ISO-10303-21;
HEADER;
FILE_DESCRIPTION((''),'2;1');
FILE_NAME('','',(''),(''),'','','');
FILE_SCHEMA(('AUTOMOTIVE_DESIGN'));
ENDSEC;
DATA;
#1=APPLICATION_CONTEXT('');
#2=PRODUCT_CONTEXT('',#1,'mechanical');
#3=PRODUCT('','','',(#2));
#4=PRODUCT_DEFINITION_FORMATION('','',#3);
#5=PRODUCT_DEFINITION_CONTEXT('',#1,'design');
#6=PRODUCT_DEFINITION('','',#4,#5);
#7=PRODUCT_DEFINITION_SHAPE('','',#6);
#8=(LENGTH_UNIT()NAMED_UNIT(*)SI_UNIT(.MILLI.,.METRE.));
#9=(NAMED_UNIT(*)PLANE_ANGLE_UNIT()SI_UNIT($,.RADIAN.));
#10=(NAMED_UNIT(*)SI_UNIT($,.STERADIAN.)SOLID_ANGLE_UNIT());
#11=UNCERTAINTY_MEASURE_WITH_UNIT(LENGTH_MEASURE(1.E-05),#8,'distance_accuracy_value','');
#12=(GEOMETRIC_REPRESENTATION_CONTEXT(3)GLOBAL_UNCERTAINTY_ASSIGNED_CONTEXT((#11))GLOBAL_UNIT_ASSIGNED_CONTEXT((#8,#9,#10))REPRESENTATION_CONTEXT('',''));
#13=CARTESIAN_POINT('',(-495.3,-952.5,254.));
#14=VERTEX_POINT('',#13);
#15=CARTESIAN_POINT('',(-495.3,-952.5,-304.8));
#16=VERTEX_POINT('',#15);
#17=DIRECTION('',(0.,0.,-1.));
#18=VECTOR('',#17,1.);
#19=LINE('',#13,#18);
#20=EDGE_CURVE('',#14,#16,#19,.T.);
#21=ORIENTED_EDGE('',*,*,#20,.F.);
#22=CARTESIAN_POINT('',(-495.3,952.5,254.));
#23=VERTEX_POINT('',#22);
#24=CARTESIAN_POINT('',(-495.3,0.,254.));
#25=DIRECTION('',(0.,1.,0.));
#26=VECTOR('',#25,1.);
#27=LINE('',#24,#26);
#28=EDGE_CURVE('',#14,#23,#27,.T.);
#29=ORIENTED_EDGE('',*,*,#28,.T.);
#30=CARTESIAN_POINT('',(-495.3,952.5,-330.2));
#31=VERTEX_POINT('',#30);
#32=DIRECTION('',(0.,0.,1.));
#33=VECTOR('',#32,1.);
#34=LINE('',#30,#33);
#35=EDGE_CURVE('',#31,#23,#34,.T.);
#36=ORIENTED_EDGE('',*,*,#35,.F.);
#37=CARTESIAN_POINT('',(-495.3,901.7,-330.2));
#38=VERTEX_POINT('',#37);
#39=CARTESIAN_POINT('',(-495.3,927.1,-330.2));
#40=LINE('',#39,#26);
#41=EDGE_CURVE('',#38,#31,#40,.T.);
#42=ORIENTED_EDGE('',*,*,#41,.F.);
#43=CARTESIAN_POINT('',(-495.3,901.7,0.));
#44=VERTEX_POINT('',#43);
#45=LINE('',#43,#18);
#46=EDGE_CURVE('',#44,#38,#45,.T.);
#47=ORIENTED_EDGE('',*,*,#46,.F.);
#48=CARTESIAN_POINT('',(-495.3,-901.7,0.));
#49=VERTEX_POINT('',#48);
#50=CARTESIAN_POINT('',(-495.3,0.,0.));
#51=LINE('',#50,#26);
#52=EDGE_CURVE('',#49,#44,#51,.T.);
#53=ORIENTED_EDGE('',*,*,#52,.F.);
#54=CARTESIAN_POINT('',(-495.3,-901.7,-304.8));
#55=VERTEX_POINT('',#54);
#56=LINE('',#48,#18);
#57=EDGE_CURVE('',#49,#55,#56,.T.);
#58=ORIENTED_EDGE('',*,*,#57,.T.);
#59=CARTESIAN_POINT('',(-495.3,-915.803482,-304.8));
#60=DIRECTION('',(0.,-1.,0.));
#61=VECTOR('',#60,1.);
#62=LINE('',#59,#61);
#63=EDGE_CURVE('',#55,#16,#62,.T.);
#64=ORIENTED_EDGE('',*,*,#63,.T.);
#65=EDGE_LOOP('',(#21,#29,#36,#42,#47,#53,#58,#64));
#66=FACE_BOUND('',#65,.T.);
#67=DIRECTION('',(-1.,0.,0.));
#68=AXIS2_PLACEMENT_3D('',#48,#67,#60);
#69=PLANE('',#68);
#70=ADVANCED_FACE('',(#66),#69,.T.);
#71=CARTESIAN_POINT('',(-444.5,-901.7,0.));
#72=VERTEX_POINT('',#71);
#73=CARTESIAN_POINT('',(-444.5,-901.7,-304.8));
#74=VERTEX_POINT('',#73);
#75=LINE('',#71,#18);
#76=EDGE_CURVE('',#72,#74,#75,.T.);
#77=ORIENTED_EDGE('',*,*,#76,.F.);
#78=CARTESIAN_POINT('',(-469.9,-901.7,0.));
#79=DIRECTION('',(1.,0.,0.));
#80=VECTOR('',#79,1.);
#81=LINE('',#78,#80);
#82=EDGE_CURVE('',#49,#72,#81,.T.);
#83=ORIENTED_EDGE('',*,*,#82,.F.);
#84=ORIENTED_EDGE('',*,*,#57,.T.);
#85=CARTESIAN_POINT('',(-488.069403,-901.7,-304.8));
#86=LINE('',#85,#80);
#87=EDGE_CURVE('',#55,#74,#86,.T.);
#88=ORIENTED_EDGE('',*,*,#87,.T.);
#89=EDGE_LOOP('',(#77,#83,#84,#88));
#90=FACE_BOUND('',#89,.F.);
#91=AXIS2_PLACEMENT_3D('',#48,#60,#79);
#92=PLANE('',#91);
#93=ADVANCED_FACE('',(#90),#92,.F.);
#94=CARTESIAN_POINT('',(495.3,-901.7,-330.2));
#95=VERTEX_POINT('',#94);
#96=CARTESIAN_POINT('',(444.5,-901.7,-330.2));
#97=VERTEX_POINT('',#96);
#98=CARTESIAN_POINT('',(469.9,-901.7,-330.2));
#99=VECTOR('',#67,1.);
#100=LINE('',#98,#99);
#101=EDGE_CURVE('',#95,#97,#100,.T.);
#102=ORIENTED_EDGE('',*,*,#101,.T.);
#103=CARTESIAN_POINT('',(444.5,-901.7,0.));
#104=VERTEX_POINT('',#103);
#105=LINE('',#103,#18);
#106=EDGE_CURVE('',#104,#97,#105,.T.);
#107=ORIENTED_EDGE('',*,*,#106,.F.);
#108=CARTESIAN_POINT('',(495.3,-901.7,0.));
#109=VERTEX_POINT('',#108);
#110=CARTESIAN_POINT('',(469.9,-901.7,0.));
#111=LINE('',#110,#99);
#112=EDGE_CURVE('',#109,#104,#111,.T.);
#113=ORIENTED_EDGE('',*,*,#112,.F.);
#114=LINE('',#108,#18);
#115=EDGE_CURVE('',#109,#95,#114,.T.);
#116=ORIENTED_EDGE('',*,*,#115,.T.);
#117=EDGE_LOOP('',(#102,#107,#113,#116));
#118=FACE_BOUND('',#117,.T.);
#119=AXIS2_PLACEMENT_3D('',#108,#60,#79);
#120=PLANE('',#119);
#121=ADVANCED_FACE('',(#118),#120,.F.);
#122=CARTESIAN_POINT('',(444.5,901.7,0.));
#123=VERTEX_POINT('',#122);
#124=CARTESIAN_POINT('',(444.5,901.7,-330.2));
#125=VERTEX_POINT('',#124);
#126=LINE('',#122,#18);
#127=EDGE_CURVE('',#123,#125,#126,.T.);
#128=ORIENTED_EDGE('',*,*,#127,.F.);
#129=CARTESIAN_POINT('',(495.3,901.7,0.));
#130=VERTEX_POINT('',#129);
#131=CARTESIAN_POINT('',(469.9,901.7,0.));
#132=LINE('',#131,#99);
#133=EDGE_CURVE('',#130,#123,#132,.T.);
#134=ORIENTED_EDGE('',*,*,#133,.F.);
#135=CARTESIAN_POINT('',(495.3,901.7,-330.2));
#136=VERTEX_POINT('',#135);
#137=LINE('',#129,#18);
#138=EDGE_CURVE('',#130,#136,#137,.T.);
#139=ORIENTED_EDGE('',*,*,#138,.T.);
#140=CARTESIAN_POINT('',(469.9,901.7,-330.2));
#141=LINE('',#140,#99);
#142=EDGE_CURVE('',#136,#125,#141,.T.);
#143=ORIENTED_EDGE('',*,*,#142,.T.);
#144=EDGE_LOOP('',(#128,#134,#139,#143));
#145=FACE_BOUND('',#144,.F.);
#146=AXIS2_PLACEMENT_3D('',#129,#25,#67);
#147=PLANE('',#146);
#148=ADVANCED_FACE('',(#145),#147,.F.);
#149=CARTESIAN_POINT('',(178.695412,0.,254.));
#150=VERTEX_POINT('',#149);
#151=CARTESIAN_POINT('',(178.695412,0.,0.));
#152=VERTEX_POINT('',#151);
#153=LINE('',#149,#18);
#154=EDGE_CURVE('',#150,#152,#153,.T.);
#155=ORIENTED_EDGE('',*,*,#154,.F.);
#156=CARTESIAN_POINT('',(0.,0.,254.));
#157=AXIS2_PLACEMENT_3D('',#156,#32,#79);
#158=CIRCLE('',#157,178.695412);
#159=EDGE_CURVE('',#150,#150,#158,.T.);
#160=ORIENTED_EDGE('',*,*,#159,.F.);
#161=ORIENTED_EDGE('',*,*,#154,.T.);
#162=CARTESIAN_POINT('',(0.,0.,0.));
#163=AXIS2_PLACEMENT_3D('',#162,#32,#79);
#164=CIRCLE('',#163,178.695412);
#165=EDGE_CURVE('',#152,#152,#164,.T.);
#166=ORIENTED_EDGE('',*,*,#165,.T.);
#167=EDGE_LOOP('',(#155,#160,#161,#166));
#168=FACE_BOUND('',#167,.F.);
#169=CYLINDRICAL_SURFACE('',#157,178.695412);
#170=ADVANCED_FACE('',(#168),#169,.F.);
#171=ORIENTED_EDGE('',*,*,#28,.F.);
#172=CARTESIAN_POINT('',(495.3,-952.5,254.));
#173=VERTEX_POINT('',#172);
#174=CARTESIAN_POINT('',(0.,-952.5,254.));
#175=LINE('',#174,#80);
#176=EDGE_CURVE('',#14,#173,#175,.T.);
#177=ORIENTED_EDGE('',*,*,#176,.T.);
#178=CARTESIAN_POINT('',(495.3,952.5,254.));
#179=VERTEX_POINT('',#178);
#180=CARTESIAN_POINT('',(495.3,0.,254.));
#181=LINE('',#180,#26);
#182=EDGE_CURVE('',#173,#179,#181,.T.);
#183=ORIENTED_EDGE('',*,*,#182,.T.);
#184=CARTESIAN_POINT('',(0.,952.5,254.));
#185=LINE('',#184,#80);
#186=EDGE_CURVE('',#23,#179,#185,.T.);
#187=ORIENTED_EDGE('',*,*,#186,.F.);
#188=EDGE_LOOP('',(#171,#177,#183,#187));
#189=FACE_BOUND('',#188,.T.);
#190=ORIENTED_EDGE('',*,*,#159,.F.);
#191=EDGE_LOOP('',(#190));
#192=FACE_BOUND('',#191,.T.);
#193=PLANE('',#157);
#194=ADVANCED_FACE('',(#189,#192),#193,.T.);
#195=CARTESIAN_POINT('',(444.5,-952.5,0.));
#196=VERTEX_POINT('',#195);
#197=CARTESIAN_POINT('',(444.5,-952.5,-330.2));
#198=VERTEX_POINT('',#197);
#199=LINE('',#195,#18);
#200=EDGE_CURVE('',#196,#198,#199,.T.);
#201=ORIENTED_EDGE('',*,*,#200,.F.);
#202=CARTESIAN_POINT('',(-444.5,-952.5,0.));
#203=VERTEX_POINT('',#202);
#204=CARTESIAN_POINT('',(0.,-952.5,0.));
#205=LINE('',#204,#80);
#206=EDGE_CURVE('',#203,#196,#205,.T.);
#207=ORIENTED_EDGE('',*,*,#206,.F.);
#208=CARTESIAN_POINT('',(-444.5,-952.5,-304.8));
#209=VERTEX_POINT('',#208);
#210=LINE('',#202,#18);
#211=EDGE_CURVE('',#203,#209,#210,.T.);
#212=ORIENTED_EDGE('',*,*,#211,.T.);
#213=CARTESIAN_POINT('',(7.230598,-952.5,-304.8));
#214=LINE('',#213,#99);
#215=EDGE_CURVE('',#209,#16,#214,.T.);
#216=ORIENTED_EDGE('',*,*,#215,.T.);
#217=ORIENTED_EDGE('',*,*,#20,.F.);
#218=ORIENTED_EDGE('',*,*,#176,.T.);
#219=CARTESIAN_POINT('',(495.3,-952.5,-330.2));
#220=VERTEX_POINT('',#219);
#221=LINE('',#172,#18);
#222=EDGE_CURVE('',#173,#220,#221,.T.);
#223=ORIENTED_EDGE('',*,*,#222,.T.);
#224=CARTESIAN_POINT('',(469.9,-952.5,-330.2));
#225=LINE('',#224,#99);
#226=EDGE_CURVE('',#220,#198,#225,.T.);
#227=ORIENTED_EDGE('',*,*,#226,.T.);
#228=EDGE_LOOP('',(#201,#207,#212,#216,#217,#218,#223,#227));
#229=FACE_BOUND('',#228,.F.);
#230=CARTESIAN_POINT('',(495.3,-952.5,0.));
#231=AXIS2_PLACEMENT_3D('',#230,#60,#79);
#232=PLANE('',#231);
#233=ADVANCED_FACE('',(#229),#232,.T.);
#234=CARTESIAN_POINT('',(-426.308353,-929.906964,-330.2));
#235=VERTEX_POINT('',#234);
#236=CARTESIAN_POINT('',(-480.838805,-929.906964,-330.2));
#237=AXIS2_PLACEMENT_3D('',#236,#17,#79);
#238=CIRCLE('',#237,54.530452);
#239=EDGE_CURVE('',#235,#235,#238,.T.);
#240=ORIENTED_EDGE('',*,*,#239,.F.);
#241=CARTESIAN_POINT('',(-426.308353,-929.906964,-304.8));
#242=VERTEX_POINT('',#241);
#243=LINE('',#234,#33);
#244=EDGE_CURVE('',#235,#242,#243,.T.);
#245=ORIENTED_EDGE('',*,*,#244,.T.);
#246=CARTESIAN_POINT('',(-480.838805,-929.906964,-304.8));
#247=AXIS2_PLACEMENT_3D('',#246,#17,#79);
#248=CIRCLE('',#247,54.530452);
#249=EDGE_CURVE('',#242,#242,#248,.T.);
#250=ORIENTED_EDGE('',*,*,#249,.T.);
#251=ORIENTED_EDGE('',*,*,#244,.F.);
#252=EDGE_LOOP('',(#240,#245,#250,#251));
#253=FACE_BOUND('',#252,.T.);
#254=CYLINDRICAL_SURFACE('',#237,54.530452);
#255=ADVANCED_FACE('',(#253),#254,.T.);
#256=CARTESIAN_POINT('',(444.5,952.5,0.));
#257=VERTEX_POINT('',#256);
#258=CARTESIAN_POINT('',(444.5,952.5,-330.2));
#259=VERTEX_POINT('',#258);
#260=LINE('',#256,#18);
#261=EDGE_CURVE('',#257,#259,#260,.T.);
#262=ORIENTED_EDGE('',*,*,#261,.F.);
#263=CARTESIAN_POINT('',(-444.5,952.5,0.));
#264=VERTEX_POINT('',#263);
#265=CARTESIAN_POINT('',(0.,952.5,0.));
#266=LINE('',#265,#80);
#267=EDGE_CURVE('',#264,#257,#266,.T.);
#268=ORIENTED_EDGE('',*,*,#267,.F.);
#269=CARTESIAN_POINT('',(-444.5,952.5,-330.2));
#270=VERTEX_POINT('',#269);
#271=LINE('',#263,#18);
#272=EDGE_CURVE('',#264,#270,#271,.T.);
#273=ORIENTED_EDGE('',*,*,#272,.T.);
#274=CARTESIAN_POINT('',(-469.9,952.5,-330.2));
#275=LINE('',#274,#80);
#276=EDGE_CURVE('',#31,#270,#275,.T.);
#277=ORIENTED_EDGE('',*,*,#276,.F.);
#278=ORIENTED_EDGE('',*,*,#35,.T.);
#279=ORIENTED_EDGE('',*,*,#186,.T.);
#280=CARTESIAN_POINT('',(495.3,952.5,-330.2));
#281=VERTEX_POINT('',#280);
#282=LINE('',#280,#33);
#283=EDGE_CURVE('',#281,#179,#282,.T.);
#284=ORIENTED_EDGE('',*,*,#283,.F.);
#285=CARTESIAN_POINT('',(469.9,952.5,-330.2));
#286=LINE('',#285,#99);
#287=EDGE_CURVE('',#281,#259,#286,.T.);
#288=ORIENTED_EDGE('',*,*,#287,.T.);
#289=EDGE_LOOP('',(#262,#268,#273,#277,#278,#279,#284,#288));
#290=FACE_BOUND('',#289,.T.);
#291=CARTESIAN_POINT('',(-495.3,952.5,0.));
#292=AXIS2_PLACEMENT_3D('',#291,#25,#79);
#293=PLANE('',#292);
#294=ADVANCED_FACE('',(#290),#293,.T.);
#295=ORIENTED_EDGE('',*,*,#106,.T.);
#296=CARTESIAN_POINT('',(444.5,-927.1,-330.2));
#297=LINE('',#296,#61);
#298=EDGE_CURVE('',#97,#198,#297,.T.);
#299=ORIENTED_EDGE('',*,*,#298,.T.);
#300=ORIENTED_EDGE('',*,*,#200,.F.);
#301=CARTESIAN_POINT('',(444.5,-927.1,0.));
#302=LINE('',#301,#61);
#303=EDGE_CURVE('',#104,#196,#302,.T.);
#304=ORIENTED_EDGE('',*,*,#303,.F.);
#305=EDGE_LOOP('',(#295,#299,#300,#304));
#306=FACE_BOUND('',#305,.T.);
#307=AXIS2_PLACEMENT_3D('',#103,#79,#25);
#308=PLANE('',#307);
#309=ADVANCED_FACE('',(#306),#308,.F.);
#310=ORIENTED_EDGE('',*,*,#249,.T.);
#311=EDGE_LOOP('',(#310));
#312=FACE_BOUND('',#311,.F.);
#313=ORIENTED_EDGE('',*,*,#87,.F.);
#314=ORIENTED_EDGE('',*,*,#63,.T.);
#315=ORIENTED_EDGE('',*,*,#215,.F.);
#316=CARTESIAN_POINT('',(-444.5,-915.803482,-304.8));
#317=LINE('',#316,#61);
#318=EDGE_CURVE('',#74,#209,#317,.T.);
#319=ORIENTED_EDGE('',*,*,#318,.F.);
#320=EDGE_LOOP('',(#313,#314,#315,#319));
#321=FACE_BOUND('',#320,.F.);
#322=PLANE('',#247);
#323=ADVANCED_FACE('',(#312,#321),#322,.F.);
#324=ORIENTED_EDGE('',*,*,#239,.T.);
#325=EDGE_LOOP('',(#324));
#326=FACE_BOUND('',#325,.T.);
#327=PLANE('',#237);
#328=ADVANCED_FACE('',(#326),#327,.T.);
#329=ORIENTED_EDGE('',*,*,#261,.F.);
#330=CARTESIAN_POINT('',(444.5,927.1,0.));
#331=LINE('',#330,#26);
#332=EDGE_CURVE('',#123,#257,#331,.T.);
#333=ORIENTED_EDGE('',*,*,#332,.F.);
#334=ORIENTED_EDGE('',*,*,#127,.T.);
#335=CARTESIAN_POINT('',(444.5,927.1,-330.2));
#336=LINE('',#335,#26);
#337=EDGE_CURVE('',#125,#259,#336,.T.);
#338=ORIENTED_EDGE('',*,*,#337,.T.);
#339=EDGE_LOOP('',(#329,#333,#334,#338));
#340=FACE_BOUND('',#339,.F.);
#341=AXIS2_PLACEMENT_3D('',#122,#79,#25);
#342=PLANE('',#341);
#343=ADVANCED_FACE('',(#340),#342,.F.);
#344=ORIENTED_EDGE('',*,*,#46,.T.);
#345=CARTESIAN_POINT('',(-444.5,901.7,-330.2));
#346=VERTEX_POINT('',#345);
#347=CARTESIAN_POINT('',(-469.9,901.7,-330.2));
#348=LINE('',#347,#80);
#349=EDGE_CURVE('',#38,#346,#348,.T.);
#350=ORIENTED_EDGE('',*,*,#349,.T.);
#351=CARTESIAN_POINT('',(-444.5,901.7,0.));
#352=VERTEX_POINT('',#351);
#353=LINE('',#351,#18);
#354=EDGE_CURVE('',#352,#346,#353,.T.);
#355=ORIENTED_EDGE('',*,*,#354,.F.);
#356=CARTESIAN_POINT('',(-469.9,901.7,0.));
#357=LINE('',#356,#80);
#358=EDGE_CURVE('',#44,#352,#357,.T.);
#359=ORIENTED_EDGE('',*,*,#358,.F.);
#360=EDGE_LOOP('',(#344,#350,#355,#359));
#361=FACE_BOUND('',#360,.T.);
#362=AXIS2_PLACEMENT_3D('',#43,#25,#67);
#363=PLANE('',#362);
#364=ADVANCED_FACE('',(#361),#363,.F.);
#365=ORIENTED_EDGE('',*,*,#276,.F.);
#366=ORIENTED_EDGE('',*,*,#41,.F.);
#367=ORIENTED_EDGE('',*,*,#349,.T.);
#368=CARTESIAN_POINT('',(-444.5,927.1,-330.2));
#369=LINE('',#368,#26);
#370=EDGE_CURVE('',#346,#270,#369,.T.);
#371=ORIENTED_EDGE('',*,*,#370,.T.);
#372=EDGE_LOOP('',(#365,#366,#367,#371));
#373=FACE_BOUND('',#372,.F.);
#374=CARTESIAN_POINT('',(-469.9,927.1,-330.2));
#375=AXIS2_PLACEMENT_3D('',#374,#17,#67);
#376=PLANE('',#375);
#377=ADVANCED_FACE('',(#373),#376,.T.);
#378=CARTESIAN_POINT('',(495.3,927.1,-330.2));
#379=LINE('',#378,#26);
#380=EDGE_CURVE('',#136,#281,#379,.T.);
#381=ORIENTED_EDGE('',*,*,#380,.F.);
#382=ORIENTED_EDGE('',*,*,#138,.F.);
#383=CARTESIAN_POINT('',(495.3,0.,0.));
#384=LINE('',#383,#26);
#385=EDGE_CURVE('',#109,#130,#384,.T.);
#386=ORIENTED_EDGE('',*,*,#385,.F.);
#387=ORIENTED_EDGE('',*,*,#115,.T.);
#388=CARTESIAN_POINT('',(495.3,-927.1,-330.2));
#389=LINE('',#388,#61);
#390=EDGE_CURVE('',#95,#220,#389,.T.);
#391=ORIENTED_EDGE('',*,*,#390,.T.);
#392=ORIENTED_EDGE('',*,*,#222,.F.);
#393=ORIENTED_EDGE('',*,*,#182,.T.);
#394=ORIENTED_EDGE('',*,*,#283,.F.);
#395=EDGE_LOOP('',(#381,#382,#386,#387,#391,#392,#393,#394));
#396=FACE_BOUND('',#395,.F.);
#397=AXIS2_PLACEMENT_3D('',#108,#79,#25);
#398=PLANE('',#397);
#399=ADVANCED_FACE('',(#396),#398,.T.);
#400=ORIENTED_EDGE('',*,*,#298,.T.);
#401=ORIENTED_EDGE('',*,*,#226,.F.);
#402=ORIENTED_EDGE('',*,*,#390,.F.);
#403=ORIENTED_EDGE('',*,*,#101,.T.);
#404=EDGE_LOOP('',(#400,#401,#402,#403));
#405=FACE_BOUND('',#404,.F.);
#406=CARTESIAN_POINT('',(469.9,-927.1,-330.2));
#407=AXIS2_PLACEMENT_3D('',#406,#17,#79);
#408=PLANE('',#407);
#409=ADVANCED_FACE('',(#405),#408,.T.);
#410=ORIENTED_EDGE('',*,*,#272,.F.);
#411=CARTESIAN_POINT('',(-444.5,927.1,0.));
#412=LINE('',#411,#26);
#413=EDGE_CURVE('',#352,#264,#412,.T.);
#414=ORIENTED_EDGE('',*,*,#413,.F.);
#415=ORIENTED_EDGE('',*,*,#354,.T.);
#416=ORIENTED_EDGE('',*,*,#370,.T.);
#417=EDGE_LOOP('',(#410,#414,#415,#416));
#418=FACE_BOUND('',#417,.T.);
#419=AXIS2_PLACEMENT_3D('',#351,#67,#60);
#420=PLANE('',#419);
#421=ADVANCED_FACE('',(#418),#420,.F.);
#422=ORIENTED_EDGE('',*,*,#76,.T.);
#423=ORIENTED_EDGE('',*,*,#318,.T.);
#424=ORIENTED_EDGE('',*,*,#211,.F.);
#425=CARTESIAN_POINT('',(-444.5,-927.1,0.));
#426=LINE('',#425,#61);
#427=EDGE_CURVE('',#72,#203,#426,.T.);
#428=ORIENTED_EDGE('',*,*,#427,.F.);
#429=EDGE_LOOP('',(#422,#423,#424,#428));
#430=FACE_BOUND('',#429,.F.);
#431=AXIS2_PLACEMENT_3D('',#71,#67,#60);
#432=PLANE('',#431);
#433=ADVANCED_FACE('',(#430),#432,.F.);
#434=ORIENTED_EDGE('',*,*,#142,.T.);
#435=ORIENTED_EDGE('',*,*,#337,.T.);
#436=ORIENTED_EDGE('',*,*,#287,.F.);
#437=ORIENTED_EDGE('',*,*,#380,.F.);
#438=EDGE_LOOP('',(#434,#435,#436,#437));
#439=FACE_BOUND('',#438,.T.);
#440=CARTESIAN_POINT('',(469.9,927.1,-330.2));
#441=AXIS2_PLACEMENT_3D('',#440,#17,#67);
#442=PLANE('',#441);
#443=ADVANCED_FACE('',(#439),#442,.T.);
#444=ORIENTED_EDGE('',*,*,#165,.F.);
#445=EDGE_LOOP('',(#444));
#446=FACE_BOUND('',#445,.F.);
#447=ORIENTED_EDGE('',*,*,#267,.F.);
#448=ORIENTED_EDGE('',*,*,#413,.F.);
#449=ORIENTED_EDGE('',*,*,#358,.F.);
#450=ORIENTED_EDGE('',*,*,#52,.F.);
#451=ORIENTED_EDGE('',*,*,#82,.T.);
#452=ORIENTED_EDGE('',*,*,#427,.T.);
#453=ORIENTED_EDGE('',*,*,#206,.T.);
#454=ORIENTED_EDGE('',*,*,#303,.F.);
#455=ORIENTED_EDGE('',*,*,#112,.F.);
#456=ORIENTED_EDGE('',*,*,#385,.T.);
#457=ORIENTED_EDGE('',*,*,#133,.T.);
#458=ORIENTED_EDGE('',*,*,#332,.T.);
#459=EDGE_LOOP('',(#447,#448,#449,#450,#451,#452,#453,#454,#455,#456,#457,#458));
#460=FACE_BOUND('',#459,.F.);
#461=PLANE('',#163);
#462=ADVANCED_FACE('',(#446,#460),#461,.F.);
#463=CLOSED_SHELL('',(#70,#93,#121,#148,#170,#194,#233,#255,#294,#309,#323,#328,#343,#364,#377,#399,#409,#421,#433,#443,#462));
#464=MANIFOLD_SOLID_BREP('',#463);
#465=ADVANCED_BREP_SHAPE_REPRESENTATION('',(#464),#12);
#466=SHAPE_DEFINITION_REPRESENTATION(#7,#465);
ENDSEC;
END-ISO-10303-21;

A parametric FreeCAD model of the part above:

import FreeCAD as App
import Part
import Sketcher
from FreeCAD import Vector
Q = App.Units.Quantity


def add_polygon(sketch, points):
    """Adds a closed chain of lines whose ends are joined by coincident constraints."""
    first, n = sketch.GeometryCount, len(points)
    for a, b in zip(points, points[1:] + points[:1]):
        sketch.addGeometry(Part.LineSegment(App.Vector(*a, 0), App.Vector(*b, 0)), False)
    for i in range(n):
        sketch.addConstraint(Sketcher.Constraint("Coincident", first + i, 2, first + (i + 1) % n, 1))

doc = App.newDocument("Part")
body = doc.addObject("PartDesign::Body", "Body")

sketch1 = body.newObject("Sketcher::SketchObject", "Sketch")
sketch1.AttachmentSupport = (doc.getObject("XY_Plane"), [""])
sketch1.MapMode = "FlatFace"
add_polygon(sketch1, [(-495.3, 952.5), (-495.3, -952.5), (495.3, -952.5), (495.3, 952.5)])
sketch1.addConstraint(Sketcher.Constraint("Vertical", 0))
sketch1.addConstraint(Sketcher.Constraint("Horizontal", 1))
sketch1.addConstraint(Sketcher.Constraint("Vertical", 2))
sketch1.addConstraint(Sketcher.Constraint("Horizontal", 3))
sketch1.addConstraint(Sketcher.Constraint("Symmetric", 0, 2, 2, 2, -1, 1))
sketch1.addConstraint(Sketcher.Constraint("DistanceX", 1, 1, 1, 2, Q("39 in")))
sketch1.addConstraint(Sketcher.Constraint("DistanceY", 0, 2, 0, 1, Q("75 in")))
pad1 = body.newObject("PartDesign::Pad", "Pad")
pad1.Profile = sketch1
pad1.Length = Q("10 in")

sketch2 = body.newObject("Sketcher::SketchObject", "Sketch001")
sketch2.AttachmentSupport = (doc.getObject("XY_Plane"), [""])
sketch2.MapMode = "FlatFace"
add_polygon(sketch2, [(-495.3, -952.5), (-495.3, -901.7), (-444.5, -901.7), (-444.5, -952.5)])
sketch2.addConstraint(Sketcher.Constraint("Vertical", 0))
sketch2.addConstraint(Sketcher.Constraint("Horizontal", 1))
sketch2.addConstraint(Sketcher.Constraint("Vertical", 2))
sketch2.addConstraint(Sketcher.Constraint("Horizontal", 3))
sketch2.addConstraint(Sketcher.Constraint("Equal", 3, 0))
sketch2.addConstraint(Sketcher.Constraint("DistanceX", 1, 1, 1, 2, Q("2 in")))
sketch2.addConstraint(Sketcher.Constraint("DistanceX", 0, 2, -1, 1, Q("19.5 in")))
sketch2.addConstraint(Sketcher.Constraint("DistanceY", 0, 2, -1, 1, Q("35.5 in")))
pad2 = body.newObject("PartDesign::Pad", "Pad001")
pad2.Profile = sketch2
pad2.Length = Q("13 in")
pad2.Reversed = True
body2 = doc.addObject("PartDesign::Body", "Body001")
doc.recompute()

body2.BaseFeature = body
doc.recompute()

mirroring = doc.addObject("Part::Mirroring", "Mirroring")
mirroring.Source = body
mirroring.Base = Vector(0, 0, 0)
mirroring.Normal = Vector(1, 0, 0)
body3 = doc.addObject("PartDesign::Body", "Body002")
body3.BaseFeature = mirroring
boolean = body2.newObject("PartDesign::Boolean", "Boolean")
boolean.Type = "Fuse"
boolean.addObjects([body3])
doc.recompute()
body4 = doc.addObject("PartDesign::Body", "Body003")
doc.recompute()

body4.BaseFeature = body2
doc.recompute()

mirroring2 = doc.addObject("Part::Mirroring", "Mirroring001")
mirroring2.Source = body2
mirroring2.Base = Vector(0, 0, 0)
mirroring2.Normal = Vector(0, -1, 0)
body5 = doc.addObject("PartDesign::Body", "Body004")
body5.BaseFeature = mirroring2
boolean2 = body4.newObject("PartDesign::Boolean", "Boolean001")
boolean2.Type = "Fuse"
boolean2.addObjects([body5])
doc.recompute()

sketch3 = body4.newObject("Sketcher::SketchObject", "Sketch002")
sketch3.AttachmentSupport = (doc.getObject("XY_Plane003"), [""])
sketch3.MapMode = "FlatFace"
sketch3.AttachmentOffset = App.Placement(Vector(0, 0, 10 * 25.4), App.Rotation())
sketch3.addGeometry(Part.Circle(Vector(0, 0, 0), Vector(0, 0, 1), 178.695412), False)
sketch3.addConstraint(Sketcher.Constraint("Coincident", 0, 3, -1, 1))
sketch3.addConstraint(Sketcher.Constraint("Diameter", 0, 357.390824))
pocket1 = body4.newObject("PartDesign::Pocket", "Pocket")
pocket1.Profile = sketch3
pocket1.Type = "ThroughAll"

sketch4 = body4.newObject("Sketcher::SketchObject", "Sketch003")
sketch4.AttachmentSupport = (doc.getObject("XY_Plane003"), [""])
sketch4.MapMode = "FlatFace"
sketch4.AttachmentOffset = App.Placement(Vector(0, 0, -13 * 25.4), App.Rotation())
sketch4.addGeometry(Part.Circle(Vector(-480.838805, -929.906964, 0), Vector(0, 0, 1), 54.530452), False)
sketch4.addConstraint(Sketcher.Constraint("Diameter", 0, 109.060904))
sketch4.addConstraint(Sketcher.Constraint("DistanceX", 0, 3, -1, 1, 480.838805))
sketch4.addConstraint(Sketcher.Constraint("DistanceY", 0, 3, -1, 1, 929.906964))
pad3 = body4.newObject("PartDesign::Pad", "Pad002")
pad3.Profile = sketch4
pad3.Length = Q("1 in")
mirroring.Visibility = False
mirroring2.Visibility = False

doc.recompute()
